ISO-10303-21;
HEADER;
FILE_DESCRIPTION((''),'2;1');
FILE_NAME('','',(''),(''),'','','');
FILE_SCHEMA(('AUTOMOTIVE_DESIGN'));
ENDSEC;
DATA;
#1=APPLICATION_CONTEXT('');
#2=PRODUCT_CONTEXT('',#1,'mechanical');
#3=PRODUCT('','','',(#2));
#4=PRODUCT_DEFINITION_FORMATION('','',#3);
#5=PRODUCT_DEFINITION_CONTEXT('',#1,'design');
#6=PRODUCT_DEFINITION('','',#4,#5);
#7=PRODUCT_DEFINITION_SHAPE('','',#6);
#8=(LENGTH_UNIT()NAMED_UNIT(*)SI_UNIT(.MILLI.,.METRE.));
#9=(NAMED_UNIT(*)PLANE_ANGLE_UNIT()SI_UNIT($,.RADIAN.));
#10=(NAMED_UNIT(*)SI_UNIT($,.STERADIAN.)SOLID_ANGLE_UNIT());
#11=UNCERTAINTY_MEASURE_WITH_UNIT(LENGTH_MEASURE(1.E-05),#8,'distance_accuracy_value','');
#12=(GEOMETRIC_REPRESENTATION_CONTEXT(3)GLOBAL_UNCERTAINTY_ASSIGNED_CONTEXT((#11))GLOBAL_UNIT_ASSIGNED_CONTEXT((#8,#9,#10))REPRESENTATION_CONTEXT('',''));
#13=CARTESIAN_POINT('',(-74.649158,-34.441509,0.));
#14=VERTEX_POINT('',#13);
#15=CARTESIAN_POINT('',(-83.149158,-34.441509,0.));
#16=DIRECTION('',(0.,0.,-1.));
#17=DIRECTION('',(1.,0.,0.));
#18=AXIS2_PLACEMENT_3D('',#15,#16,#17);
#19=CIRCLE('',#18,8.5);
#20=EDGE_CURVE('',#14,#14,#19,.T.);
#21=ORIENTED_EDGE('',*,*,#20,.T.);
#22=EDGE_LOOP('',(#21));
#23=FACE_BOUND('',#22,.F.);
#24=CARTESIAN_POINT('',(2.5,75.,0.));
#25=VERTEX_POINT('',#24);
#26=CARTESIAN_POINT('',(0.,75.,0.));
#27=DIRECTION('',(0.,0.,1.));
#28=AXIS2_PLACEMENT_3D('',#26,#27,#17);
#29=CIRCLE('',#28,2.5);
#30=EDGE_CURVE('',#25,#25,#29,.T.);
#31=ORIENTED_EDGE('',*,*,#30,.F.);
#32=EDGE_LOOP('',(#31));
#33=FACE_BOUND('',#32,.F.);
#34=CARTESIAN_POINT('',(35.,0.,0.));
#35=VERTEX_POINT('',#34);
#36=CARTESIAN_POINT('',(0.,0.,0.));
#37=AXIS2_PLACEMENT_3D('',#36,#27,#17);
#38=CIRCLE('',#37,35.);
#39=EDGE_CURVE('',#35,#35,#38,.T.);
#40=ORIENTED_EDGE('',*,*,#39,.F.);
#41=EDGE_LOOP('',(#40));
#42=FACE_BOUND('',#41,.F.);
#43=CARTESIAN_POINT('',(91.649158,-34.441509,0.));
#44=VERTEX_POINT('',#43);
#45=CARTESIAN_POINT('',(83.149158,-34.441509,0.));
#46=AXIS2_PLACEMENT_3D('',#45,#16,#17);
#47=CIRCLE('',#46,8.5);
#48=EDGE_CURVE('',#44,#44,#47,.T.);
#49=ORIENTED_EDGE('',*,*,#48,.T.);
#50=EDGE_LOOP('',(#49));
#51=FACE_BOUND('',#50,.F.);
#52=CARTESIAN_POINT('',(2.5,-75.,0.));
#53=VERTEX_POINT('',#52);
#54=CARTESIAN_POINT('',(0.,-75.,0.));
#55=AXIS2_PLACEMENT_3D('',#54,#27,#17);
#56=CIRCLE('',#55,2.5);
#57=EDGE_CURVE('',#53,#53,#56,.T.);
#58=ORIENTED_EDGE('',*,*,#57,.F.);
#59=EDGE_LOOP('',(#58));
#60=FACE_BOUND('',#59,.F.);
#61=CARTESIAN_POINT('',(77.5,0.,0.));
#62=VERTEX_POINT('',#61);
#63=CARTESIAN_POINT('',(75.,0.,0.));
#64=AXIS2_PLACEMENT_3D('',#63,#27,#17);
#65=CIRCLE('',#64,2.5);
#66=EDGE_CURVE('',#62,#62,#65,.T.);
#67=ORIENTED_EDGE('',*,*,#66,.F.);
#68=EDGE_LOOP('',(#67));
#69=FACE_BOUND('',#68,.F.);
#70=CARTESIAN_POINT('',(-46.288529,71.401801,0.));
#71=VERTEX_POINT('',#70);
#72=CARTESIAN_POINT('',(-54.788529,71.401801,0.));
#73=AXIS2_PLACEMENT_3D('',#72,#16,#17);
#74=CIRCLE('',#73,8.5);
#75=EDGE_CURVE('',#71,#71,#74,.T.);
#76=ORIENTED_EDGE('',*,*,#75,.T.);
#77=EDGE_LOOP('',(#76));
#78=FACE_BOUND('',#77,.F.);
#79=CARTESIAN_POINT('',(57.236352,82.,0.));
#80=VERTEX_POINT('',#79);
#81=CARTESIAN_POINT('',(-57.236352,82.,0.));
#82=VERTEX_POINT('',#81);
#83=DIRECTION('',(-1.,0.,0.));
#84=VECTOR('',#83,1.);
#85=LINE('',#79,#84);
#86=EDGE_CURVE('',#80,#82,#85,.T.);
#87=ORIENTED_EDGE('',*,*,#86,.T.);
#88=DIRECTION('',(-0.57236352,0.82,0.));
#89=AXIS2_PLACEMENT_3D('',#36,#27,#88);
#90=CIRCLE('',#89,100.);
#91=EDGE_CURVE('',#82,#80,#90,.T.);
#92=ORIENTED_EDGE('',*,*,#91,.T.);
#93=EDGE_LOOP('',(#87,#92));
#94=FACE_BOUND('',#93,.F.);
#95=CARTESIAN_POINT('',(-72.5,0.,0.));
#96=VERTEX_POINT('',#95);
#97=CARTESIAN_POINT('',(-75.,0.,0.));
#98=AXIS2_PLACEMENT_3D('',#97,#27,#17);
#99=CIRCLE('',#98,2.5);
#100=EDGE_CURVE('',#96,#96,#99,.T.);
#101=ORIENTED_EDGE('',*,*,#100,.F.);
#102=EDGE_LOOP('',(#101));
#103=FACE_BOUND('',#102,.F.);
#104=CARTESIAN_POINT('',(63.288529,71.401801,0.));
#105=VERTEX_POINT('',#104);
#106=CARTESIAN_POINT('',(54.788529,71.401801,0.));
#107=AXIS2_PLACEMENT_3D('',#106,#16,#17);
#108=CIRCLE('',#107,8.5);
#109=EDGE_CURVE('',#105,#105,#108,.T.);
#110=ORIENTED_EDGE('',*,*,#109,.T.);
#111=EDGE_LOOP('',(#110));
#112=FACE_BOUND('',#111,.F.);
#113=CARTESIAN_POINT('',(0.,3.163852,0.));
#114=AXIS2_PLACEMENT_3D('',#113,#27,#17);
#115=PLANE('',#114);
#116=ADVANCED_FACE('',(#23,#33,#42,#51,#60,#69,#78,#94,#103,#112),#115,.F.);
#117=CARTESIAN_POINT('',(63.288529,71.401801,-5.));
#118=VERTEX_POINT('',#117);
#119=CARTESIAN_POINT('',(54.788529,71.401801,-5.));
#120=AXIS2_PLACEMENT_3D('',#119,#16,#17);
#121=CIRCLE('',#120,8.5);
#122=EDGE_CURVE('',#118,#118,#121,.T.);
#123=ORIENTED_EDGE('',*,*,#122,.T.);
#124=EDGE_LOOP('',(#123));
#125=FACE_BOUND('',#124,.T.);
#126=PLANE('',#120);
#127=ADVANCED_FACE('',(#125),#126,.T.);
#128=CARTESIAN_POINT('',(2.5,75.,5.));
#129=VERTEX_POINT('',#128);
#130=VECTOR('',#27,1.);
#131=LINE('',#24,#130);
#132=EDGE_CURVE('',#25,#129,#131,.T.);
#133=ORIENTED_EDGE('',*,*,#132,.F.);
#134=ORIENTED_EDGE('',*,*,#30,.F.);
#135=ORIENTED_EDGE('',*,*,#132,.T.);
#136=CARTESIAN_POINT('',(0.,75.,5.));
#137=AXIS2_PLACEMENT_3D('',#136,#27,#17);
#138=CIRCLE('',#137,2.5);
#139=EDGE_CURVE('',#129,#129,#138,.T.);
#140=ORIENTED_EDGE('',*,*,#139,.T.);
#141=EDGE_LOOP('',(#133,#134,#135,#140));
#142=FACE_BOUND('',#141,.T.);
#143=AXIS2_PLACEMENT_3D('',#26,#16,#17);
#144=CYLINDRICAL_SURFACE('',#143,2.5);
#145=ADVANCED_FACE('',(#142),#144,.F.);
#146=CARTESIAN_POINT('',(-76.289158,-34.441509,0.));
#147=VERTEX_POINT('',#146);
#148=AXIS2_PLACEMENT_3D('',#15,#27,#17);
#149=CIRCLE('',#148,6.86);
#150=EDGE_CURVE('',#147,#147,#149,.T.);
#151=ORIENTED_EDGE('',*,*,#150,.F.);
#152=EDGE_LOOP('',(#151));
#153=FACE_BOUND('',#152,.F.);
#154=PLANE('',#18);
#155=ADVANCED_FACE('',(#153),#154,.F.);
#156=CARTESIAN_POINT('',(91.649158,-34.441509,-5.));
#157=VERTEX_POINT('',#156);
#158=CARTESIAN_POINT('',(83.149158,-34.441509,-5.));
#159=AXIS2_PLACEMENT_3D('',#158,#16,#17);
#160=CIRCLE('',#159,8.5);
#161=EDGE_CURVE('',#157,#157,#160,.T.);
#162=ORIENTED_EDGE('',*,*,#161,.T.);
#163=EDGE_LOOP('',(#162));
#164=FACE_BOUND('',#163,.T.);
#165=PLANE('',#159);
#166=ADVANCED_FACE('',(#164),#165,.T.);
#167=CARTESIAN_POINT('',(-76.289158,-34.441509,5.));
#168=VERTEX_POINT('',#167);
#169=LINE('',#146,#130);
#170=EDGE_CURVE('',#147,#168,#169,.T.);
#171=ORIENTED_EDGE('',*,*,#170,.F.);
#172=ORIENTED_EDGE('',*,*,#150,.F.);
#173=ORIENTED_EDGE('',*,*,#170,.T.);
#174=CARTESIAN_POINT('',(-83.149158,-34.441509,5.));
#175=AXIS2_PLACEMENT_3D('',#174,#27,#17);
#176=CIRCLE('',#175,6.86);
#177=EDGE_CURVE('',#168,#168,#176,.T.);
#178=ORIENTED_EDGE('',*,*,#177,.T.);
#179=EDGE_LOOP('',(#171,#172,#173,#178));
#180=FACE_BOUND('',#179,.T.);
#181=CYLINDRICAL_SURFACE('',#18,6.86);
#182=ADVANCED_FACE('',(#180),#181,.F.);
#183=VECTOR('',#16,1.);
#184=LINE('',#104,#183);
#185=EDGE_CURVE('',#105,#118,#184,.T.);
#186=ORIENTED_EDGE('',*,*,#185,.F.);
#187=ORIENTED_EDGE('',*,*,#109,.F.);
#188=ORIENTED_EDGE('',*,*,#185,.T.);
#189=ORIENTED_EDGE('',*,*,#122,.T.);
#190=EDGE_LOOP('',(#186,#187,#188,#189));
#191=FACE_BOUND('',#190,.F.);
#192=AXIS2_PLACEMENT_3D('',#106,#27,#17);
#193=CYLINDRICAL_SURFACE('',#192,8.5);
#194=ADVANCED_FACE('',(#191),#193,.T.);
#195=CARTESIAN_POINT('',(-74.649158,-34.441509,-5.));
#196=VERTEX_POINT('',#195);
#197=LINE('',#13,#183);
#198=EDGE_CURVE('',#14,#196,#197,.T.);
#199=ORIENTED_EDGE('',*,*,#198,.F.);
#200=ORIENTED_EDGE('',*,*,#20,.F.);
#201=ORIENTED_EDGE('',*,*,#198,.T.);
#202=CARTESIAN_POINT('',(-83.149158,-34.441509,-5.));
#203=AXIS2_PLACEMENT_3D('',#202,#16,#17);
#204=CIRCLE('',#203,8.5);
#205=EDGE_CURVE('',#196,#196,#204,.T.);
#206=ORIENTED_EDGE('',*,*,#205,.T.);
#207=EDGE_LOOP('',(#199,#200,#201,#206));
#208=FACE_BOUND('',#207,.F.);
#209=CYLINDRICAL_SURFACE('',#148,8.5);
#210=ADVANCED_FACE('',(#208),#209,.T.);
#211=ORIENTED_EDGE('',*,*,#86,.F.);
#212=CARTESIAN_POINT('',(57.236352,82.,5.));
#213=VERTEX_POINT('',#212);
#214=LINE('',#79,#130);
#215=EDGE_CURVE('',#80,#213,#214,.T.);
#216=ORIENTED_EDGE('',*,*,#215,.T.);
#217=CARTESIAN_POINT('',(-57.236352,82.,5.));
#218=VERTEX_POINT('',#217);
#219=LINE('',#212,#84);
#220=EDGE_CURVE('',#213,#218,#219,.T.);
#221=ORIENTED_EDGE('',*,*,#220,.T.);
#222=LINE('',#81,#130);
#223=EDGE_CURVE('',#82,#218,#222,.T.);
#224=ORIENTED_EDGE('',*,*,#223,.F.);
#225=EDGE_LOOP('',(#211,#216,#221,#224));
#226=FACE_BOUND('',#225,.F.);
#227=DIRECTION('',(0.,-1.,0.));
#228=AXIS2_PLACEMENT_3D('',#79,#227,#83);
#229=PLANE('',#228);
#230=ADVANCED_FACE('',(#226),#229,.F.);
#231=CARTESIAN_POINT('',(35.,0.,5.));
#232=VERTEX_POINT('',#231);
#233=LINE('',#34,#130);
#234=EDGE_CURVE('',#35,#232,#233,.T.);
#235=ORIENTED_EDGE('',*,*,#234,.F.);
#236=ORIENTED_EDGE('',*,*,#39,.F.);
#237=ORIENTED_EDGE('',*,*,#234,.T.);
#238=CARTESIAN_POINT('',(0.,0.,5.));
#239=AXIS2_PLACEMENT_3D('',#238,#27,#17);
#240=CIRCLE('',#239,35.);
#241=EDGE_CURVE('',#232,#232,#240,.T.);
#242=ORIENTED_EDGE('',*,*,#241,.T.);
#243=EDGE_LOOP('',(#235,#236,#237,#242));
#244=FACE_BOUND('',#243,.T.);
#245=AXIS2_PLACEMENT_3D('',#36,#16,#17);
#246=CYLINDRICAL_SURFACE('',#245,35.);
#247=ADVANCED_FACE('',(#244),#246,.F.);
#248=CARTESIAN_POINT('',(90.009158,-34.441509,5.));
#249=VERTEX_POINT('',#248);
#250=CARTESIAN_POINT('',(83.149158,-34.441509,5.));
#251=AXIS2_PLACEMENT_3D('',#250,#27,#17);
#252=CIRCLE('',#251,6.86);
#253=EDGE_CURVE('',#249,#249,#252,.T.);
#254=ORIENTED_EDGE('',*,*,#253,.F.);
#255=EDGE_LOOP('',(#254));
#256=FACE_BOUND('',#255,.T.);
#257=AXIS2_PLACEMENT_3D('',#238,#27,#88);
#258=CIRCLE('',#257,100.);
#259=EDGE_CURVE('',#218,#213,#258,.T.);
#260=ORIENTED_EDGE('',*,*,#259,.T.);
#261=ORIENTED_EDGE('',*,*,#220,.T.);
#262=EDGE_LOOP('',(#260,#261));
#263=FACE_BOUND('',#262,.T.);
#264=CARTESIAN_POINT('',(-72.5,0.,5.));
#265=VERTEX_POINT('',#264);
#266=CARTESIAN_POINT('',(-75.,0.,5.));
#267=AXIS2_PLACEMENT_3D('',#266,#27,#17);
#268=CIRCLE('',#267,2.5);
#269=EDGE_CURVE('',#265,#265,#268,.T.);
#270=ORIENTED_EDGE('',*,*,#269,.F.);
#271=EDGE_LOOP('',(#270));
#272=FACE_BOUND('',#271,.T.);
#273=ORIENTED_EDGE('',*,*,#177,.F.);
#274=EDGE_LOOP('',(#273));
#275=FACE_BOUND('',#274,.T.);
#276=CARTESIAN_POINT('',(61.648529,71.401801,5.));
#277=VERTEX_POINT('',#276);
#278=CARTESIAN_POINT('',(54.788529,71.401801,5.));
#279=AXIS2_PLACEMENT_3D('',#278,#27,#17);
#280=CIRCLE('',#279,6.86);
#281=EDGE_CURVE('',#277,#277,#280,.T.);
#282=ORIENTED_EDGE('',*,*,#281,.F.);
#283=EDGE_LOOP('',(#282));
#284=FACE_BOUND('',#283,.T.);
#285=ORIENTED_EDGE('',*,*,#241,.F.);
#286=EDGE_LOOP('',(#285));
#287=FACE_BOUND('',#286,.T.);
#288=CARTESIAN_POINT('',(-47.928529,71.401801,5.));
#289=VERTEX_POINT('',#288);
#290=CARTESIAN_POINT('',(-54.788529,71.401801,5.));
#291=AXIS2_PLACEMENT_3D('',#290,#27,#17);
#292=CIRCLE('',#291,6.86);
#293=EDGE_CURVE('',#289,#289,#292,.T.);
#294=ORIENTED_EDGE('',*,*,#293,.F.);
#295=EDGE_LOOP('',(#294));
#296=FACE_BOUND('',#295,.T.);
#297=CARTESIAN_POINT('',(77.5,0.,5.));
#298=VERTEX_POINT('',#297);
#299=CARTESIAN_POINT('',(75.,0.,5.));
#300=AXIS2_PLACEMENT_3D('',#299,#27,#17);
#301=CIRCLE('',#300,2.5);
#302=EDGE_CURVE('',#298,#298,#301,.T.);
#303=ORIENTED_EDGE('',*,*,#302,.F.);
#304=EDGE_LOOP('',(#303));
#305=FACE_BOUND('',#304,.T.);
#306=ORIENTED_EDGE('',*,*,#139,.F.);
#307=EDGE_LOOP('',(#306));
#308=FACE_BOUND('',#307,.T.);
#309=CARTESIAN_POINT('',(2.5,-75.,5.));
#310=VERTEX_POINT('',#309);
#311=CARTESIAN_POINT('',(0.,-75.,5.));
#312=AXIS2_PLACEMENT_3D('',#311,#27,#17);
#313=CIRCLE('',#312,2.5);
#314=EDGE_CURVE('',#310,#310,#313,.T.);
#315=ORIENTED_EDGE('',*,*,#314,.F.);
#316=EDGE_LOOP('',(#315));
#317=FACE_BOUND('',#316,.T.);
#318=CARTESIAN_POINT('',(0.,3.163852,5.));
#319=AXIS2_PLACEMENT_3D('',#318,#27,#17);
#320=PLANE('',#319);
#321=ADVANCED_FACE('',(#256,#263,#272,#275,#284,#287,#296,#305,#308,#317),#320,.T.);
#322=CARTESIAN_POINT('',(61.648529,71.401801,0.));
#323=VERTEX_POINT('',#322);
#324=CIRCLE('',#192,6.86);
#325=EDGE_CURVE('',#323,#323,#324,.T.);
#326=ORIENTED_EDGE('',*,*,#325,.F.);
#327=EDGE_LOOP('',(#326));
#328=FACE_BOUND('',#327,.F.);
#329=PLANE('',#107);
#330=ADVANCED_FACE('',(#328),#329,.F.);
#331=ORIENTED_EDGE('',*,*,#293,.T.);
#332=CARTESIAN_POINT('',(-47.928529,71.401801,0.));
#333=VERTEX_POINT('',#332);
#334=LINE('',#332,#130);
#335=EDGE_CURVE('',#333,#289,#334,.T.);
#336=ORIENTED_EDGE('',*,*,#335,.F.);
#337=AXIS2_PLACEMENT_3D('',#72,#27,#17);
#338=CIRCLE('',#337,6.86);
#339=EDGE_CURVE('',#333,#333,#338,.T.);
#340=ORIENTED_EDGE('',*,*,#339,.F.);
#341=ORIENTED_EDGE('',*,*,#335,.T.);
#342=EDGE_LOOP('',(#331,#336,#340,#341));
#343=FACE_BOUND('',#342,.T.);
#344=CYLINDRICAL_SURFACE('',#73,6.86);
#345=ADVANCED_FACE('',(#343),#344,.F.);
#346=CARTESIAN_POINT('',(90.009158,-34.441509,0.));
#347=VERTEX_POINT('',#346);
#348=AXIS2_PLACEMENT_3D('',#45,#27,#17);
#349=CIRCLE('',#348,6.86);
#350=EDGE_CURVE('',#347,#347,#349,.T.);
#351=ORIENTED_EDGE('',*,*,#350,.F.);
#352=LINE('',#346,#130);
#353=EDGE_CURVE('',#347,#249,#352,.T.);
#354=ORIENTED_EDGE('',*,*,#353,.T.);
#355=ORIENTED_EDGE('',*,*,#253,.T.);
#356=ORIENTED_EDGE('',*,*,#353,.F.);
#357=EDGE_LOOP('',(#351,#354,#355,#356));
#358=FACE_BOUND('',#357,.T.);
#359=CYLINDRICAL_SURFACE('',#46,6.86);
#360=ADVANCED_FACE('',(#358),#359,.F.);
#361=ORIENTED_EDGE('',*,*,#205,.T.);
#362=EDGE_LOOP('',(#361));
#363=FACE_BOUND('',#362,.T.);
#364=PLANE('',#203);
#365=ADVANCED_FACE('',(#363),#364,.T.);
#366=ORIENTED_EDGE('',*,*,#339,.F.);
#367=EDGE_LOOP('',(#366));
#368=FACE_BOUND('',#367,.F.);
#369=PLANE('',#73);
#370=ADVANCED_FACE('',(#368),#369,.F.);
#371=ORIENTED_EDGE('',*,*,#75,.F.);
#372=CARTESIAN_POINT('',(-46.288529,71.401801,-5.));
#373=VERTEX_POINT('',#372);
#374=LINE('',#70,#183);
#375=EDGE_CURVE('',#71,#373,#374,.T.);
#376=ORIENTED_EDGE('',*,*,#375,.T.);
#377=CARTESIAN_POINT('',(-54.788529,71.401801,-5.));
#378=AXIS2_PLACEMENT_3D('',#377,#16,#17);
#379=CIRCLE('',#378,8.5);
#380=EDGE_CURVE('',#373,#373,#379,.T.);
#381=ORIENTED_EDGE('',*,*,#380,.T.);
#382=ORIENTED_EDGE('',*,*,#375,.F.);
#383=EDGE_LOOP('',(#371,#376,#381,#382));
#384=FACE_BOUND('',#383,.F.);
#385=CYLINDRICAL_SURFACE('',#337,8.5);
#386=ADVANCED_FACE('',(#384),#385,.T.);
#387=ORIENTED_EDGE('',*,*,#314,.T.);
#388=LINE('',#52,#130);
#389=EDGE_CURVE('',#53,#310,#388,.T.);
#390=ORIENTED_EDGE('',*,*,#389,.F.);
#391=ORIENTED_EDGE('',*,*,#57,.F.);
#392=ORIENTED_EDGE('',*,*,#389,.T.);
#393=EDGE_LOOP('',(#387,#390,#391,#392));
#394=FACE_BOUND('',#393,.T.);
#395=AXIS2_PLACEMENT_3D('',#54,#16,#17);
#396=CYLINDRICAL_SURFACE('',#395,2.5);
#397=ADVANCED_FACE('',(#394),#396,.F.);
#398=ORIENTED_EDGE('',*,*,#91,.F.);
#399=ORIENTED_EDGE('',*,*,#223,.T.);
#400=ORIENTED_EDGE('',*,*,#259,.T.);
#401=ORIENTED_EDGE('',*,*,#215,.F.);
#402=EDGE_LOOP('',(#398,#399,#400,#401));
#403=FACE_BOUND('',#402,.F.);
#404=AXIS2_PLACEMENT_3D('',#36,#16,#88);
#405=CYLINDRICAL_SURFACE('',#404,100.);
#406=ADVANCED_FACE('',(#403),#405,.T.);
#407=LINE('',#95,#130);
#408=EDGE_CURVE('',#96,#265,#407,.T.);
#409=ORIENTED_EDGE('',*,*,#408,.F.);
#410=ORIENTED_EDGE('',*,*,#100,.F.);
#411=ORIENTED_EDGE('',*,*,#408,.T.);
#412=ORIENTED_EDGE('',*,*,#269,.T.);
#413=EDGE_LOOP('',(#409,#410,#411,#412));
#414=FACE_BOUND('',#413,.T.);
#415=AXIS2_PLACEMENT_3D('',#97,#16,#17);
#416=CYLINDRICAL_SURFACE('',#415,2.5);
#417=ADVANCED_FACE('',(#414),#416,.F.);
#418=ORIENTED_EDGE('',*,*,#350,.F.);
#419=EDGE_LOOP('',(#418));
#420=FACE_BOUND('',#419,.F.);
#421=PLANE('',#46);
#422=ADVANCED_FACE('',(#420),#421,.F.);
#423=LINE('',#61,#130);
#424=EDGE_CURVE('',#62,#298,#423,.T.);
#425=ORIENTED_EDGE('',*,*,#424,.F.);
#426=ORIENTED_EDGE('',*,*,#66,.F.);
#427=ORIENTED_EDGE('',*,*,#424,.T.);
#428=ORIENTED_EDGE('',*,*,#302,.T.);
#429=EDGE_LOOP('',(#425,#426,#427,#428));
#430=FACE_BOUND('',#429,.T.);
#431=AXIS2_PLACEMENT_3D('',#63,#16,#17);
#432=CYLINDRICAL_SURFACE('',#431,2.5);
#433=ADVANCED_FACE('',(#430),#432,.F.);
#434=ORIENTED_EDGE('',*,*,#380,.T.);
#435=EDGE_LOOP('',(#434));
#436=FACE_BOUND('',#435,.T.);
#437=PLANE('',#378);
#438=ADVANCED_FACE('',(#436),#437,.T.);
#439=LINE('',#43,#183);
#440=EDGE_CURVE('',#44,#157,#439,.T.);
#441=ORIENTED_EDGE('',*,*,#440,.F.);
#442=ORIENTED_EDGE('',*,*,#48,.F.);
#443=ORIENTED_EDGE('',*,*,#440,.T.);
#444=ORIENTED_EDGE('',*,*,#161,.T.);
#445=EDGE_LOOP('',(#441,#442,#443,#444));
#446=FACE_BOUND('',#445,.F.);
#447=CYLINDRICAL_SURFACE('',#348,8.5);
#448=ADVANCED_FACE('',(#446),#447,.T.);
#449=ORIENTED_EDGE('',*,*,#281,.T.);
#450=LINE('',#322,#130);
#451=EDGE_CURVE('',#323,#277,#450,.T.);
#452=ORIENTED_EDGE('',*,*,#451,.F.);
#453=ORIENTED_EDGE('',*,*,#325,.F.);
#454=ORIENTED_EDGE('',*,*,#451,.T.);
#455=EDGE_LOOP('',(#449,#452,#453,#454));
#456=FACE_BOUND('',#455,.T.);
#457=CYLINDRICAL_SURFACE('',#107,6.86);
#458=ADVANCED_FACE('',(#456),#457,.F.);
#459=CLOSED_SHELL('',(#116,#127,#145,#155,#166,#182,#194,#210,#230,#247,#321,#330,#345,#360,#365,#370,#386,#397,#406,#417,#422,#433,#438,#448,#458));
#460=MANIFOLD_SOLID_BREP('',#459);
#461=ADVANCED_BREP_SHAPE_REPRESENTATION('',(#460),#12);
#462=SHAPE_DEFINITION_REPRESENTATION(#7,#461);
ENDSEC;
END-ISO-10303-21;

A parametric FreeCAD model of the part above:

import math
import FreeCAD as App
import Part
import Sketcher
from FreeCAD import Vector
Q = App.Units.Quantity

doc = App.newDocument("Part")
body = doc.addObject("PartDesign::Body", "Body")

# Sketch on XY plane
sketch1 = body.newObject("Sketcher::SketchObject", "Sketch")
sketch1.AttachmentSupport = (doc.getObject("XY_Plane"), [""])
sketch1.MapMode = "FlatFace"
sketch1.addGeometry(Part.LineSegment(Vector(57.2, 82, 0), Vector(-57.2, 82, 0)), False)
sketch1.addGeometry(Part.ArcOfCircle(Part.Circle(Vector(0, 0, 0), Vector(0, 0, 1), 100), math.radians(125), math.radians(415)), False)
sketch1.addGeometry(Part.Circle(Vector(0, -75, 0), Vector(0, 0, 1), 2.5), False)
sketch1.addGeometry(Part.Circle(Vector(-83.1, -34.4, 0), Vector(0, 0, 1), 6.9), False)
sketch1.addGeometry(Part.Circle(Vector(-75, 0, 0), Vector(0, 0, 1), 2.5), False)
sketch1.addGeometry(Part.Circle(Vector(0, 0, 0), Vector(0, 0, 1), 35), False)
sketch1.addGeometry(Part.Circle(Vector(83.1, -34.4, 0), Vector(0, 0, 1), 6.9), False)
sketch1.addGeometry(Part.Circle(Vector(75, 0, 0), Vector(0, 0, 1), 2.5), False)
sketch1.addGeometry(Part.Circle(Vector(-54.8, 71.4, 0), Vector(0, 0, 1), 6.9), False)
sketch1.addGeometry(Part.Circle(Vector(0, 75, 0), Vector(0, 0, 1), 2.5), False)
sketch1.addGeometry(Part.Circle(Vector(54.8, 71.4, 0), Vector(0, 0, 1), 6.9), False)
sketch1.addConstraint(Sketcher.Constraint("Coincident", 0, 1, 1, 2))
sketch1.addConstraint(Sketcher.Constraint("Coincident", 1, 1, 0, 2))
sketch1.addConstraint(Sketcher.Constraint("Horizontal", 0))
sketch1.addConstraint(Sketcher.Constraint("Coincident", 1, 3, -1, 1))
sketch1.addConstraint(Sketcher.Constraint("Coincident", 5, 3, -1, 1))
sketch1.addConstraint(Sketcher.Constraint("Equal", 2, 4))
sketch1.addConstraint(Sketcher.Constraint("Equal", 3, 6))
sketch1.addConstraint(Sketcher.Constraint("Equal", 4, 7))
sketch1.addConstraint(Sketcher.Constraint("Equal", 6, 8))
sketch1.addConstraint(Sketcher.Constraint("Equal", 7, 9))
sketch1.addConstraint(Sketcher.Constraint("Equal", 8, 10))
sketch1.addConstraint(Sketcher.Constraint("Symmetric", 4, 3, 7, 3, -1, 1))
sketch1.addConstraint(Sketcher.Constraint("Symmetric", 2, 3, 9, 3, -1, 1))
sketch1.addConstraint(Sketcher.Constraint("Symmetric", 3, 3, 6, 3, -2))
sketch1.addConstraint(Sketcher.Constraint("Symmetric", 8, 3, 10, 3, -2))
sketch1.addConstraint(Sketcher.Constraint("PointOnObject", 2, 3, -2))
sketch1.addConstraint(Sketcher.Constraint("PointOnObject", 4, 3, -1))
sketch1.addConstraint(Sketcher.Constraint("Diameter", 2, Q("5 mm")))
sketch1.addConstraint(Sketcher.Constraint("Diameter", 5, Q("70 mm")))
sketch1.addConstraint(Sketcher.Constraint("Radius", 1, Q("100 mm")))
sketch1.addConstraint(Sketcher.Constraint("Diameter", 3, Q("13.72 mm")))
sketch1.addConstraint(Sketcher.Constraint("DistanceY", 2, 3, -1, 1, Q("75 mm")))
sketch1.addConstraint(Sketcher.Constraint("DistanceX", 4, 3, -1, 1, Q("75 mm")))
sketch1.addConstraint(Sketcher.Constraint("DistanceY", -1, 1, 0, 1, Q("82 mm")))
sketch1.addConstraint(Sketcher.Constraint("DistanceY", -1, 1, 8, 3, Q("71.401801 mm")))
sketch1.addConstraint(Sketcher.Constraint("DistanceX", 3, 3, -1, 1, Q("83.149158 mm")))
sketch1.addConstraint(Sketcher.Constraint("DistanceY", 3, 3, -1, 1, Q("34.441509 mm")))
sketch1.addConstraint(Sketcher.Constraint("DistanceX", 8, 3, -1, 1, Q("54.788529 mm")))
pad1 = body.newObject("PartDesign::Pad", "Pad")
pad1.Profile = sketch1
pad1.Length = 5

# Sketch on XY plane
sketch2 = body.newObject("Sketcher::SketchObject", "Sketch001")
sketch2.AttachmentSupport = (doc.getObject("XY_Plane"), [""])
sketch2.MapMode = "FlatFace"
sketch2.addGeometry(Part.Circle(Vector(83, -34, 0), Vector(0, 0, 1), 8), False)
sketch2.addGeometry(Part.Circle(Vector(55, 71, 0), Vector(0, 0, 1), 8), False)
sketch2.addGeometry(Part.Circle(Vector(-55, 71, 0), Vector(0, 0, 1), 8), False)
sketch2.addGeometry(Part.Circle(Vector(-83, -34, 0), Vector(0, 0, 1), 8), False)
sketch2.addConstraint(Sketcher.Constraint("Equal", 0, 1))
sketch2.addConstraint(Sketcher.Constraint("Equal", 1, 2))
sketch2.addConstraint(Sketcher.Constraint("Equal", 2, 3))
sketch2.addConstraint(Sketcher.Constraint("Symmetric", 1, 3, 2, 3, -2))
sketch2.addConstraint(Sketcher.Constraint("Symmetric", 0, 3, 3, 3, -2))
sketch2.addConstraint(Sketcher.Constraint("Diameter", 0, Q("17 mm")))
sketch2.addConstraint(Sketcher.Constraint("DistanceY", -1, 1, 1, 3, Q("71.401801 mm")))
sketch2.addConstraint(Sketcher.Constraint("DistanceX", -1, 1, 0, 3, Q("83.149158 mm")))
sketch2.addConstraint(Sketcher.Constraint("DistanceY", 0, 3, -1, 1, Q("34.441509 mm")))
sketch2.addConstraint(Sketcher.Constraint("DistanceX", -1, 1, 1, 3, Q("54.788529 mm")))
pad2 = body.newObject("PartDesign::Pad", "Pad001")
pad2.Profile = sketch2
pad2.Length = 5
pad2.Reversed = True

doc.recompute()
